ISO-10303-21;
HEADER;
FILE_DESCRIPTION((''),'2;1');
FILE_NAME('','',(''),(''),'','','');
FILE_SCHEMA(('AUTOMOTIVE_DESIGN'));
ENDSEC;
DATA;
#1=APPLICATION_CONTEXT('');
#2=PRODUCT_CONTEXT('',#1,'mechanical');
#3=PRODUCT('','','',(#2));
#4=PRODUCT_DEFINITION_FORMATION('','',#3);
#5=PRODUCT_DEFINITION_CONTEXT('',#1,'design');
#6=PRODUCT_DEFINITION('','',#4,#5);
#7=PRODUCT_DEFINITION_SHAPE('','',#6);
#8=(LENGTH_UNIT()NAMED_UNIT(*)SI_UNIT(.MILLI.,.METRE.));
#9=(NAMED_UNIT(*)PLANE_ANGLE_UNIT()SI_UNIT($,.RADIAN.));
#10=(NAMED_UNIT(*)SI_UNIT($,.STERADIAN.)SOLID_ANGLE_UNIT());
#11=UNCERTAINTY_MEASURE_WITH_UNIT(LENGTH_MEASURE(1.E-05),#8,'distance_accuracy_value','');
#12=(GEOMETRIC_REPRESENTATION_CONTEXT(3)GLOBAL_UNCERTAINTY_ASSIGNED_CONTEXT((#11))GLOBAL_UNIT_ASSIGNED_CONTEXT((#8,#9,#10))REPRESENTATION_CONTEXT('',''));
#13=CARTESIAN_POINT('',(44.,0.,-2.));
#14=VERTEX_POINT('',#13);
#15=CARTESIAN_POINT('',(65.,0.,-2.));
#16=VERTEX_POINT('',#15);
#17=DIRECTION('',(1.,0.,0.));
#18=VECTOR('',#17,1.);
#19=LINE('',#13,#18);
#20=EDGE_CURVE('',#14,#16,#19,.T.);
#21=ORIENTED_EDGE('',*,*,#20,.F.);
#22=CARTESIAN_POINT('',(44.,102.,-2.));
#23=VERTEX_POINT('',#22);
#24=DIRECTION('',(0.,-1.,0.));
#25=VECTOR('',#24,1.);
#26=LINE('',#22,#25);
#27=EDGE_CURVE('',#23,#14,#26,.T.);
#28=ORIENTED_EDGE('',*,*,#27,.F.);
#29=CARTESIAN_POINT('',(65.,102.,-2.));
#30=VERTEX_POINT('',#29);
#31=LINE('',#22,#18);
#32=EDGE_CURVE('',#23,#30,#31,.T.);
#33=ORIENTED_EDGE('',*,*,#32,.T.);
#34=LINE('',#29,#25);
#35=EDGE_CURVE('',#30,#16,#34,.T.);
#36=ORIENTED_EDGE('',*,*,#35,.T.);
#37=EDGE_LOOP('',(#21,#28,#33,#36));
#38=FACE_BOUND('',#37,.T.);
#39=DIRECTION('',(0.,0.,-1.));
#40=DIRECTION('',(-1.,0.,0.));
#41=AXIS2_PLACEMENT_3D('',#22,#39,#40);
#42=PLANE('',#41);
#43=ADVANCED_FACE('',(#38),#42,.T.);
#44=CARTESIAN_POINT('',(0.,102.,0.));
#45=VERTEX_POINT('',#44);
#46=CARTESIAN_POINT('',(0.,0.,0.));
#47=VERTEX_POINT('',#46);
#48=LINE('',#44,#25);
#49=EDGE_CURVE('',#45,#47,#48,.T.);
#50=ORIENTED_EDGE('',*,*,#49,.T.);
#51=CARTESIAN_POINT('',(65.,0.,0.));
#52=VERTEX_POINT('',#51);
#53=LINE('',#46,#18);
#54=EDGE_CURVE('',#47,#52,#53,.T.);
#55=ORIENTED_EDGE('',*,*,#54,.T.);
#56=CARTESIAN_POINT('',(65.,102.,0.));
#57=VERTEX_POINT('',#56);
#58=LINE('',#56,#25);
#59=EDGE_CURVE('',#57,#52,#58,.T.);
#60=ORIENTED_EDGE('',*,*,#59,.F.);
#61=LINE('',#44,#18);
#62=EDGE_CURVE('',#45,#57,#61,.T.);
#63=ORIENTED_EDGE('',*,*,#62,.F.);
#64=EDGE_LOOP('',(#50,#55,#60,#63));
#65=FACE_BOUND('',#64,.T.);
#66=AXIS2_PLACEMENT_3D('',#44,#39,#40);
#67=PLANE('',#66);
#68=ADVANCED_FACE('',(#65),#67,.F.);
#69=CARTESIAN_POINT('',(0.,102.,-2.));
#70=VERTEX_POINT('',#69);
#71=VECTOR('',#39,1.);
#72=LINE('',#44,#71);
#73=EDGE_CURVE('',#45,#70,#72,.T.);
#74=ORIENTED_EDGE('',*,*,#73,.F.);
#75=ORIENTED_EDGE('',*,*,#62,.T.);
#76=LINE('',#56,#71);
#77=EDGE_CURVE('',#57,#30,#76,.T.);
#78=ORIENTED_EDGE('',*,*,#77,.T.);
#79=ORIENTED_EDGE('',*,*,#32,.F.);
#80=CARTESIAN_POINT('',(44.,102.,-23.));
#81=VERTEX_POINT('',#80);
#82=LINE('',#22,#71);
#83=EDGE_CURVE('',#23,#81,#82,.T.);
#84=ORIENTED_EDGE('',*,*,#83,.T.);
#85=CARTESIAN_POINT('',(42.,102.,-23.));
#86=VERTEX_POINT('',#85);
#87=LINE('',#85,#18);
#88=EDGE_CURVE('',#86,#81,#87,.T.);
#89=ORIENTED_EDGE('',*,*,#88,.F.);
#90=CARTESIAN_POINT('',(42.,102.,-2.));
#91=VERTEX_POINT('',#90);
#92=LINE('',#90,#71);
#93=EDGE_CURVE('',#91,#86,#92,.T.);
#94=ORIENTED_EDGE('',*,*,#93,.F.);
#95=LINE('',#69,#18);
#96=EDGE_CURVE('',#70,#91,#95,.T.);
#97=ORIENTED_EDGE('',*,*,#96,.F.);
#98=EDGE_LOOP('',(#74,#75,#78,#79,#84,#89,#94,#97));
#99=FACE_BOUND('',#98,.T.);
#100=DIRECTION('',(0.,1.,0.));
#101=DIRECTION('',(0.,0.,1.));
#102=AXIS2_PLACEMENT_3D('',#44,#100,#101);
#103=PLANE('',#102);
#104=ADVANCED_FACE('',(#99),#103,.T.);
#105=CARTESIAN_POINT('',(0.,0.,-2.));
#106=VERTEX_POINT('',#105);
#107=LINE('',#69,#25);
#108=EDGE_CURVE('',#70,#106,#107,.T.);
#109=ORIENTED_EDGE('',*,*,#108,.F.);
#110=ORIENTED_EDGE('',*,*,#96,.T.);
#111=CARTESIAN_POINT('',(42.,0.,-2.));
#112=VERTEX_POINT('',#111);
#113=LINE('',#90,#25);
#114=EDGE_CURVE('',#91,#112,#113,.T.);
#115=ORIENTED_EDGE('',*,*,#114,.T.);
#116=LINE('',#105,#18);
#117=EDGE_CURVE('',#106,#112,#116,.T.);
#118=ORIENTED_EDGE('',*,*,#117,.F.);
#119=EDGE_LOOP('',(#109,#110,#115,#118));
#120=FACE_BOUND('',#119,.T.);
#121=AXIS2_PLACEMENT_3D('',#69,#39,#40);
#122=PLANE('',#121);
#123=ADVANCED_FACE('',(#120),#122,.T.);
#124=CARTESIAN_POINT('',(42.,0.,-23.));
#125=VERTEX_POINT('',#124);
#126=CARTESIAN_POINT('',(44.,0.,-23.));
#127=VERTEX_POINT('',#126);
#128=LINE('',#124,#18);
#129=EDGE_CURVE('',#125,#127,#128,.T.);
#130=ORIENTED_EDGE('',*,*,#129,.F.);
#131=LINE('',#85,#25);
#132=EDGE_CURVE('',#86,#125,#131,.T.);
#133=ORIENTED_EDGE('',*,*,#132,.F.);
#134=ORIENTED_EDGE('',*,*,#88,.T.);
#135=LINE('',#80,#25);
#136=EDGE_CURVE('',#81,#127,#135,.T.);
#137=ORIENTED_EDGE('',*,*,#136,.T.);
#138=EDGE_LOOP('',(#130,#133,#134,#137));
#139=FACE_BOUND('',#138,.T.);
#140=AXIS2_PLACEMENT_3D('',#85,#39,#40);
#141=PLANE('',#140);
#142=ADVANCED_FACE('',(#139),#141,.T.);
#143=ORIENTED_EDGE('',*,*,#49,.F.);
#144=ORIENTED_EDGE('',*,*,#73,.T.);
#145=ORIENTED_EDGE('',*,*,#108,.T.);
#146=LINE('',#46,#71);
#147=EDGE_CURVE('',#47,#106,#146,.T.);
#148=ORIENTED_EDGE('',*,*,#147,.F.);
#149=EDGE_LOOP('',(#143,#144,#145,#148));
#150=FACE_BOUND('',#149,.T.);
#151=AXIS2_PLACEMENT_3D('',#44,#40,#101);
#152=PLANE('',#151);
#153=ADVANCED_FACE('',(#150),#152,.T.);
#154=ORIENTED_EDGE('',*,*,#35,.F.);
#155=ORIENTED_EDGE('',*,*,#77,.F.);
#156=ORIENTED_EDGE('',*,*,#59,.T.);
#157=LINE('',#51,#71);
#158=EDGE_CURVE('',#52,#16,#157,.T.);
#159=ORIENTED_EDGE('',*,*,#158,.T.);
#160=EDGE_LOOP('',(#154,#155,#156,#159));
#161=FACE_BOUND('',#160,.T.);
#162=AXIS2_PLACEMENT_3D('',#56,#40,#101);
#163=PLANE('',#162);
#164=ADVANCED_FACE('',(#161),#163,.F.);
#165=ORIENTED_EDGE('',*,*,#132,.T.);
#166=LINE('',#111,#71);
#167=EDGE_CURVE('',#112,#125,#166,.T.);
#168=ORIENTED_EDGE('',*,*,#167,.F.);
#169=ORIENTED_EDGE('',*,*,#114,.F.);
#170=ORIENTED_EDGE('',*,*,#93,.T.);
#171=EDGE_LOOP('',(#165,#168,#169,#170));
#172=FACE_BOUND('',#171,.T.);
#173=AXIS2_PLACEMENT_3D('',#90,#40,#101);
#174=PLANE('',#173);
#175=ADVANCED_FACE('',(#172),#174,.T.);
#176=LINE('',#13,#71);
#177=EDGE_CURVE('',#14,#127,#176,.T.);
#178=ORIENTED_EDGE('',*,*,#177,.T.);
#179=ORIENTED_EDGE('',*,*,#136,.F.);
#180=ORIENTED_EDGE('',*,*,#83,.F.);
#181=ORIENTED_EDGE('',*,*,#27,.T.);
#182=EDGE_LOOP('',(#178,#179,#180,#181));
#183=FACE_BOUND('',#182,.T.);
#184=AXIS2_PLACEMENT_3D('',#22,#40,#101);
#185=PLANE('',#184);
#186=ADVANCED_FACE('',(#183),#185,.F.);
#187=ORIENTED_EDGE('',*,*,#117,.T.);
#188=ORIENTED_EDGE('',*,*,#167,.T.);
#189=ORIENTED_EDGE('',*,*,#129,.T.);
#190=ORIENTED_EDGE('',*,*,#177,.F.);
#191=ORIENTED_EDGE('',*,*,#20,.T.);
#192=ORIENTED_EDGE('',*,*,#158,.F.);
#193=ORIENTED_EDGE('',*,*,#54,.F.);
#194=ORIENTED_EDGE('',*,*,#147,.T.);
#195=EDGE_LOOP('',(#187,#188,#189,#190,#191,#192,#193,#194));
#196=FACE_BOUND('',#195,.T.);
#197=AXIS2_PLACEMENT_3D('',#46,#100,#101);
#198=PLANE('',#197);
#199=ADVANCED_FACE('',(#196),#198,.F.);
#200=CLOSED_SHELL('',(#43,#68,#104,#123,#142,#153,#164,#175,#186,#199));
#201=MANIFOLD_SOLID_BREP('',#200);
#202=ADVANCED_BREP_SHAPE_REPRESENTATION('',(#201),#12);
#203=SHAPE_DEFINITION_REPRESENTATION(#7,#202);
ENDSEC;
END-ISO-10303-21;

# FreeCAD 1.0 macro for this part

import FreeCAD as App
import Part
import Sketcher

V = App.Vector
Q = App.Units.Quantity

doc = App.newDocument("Part")
body = doc.addObject("PartDesign::Body", "Body")

sketch1 = body.newObject("Sketcher::SketchObject", "Sketch")
sketch1.AttachmentSupport = (doc.getObject("XZ_Plane"), [""])
sketch1.MapMode = "FlatFace"
sketch1.addGeometry([
    Part.LineSegment(V(65, -2, 0), V(44, -2, 0)),
    Part.LineSegment(V(44, -2, 0), V(44, -23, 0)),
    Part.LineSegment(V(44, -23, 0), V(42, -23, 0)),
    Part.LineSegment(V(42, -23, 0), V(42, -2, 0)),
    Part.LineSegment(V(42, -2, 0), V(0, -2, 0)),
    Part.LineSegment(V(0, -2, 0), V(0, 0, 0)),
    Part.LineSegment(V(0, 0, 0), V(65, 0, 0)),
    Part.LineSegment(V(65, 0, 0), V(65, -2, 0)),
], False)
sketch1.addConstraint([
    Sketcher.Constraint("Coincident", 0, 2, 1, 1),
    Sketcher.Constraint("Coincident", 1, 2, 2, 1),
    Sketcher.Constraint("Coincident", 2, 2, 3, 1),
    Sketcher.Constraint("Coincident", 3, 2, 4, 1),
    Sketcher.Constraint("Coincident", 4, 2, 5, 1),
    Sketcher.Constraint("Coincident", 5, 2, 6, 1),
    Sketcher.Constraint("Coincident", 6, 2, 7, 1),
    Sketcher.Constraint("Coincident", 7, 2, 0, 1),
    Sketcher.Constraint("Horizontal", 0),
    Sketcher.Constraint("Vertical", 1),
    Sketcher.Constraint("Horizontal", 2),
    Sketcher.Constraint("Vertical", 3),
    Sketcher.Constraint("Horizontal", 4),
    Sketcher.Constraint("Vertical", 5),
    Sketcher.Constraint("Horizontal", 6),
    Sketcher.Constraint("Vertical", 7),
    Sketcher.Constraint("Coincident", 5, 2, -1, 1),
    Sketcher.Constraint("Horizontal", 0, 2, 3, 2),
    Sketcher.Constraint("Equal", 0, 1),
    Sketcher.Constraint("Equal", 2, 5),
    Sketcher.Constraint("DistanceX", 0, 2, 0, 1, Q("21 mm")),
    Sketcher.Constraint("DistanceX", 2, 2, 2, 1, Q("2 mm")),
    Sketcher.Constraint("DistanceX", 4, 2, 4, 1, Q("42 mm")),
])
pad1 = body.newObject("PartDesign::Pad", "Pad")
pad1.Profile = sketch1
pad1.Length = 102
pad1.Reversed = True

doc.recompute()
